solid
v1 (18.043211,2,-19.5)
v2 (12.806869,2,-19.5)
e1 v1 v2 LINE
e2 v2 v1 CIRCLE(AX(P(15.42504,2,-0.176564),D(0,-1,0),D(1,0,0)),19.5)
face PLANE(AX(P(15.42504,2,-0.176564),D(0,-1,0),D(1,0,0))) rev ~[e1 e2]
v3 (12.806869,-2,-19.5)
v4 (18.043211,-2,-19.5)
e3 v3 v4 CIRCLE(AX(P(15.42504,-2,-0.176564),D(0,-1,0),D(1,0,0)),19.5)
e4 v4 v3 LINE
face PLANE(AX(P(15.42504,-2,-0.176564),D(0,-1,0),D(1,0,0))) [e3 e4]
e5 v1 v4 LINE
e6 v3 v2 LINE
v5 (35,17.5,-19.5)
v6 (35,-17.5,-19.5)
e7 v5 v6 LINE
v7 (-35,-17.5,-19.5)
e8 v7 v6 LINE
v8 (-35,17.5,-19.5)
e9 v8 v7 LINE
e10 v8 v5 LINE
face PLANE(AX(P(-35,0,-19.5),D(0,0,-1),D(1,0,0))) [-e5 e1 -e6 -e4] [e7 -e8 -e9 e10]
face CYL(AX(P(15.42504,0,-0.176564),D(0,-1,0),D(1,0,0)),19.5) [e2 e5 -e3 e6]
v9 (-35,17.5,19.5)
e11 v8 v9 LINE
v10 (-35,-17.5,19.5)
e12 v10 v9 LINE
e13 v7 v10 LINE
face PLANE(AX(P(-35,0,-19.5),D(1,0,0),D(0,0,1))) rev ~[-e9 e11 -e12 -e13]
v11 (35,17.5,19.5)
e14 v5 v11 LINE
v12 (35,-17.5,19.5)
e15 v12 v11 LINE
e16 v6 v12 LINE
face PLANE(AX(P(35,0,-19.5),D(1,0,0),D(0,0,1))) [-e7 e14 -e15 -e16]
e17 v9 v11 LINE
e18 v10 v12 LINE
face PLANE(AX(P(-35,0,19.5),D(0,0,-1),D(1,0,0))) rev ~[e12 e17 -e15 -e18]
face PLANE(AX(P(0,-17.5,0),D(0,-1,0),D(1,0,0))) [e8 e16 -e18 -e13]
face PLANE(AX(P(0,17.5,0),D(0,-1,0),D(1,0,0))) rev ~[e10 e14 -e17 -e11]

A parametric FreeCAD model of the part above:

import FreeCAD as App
import Part
import Sketcher

V = App.Vector


def add_polygon(sketch, points):
    """Adds a closed chain of lines whose ends are joined by coincident constraints."""
    first, n = sketch.GeometryCount, len(points)
    for a, b in zip(points, points[1:] + points[:1]):
        sketch.addGeometry(Part.LineSegment(App.Vector(*a, 0), App.Vector(*b, 0)), False)
    for i in range(n):
        sketch.addConstraint(Sketcher.Constraint("Coincident", first + i, 2, first + (i + 1) % n, 1))

doc = App.newDocument("Part")
params = doc.addObject("Spreadsheet::Sheet", "Params")
for row, (alias, value) in enumerate([
    ("sketch1_width", "70 mm"),
    ("sketch1_height", "39 mm"),
    ("pad1_length", "35 mm"),
    ("sketch2_diameter", "39 mm"),
    ("pad2_length", "2 mm"),
    ("pad2_length2", "2 mm"),
], start=1):
    params.set(f"A{row}", alias)
    params.set(f"B{row}", "=" + value)
    params.setAlias(f"B{row}", alias)

body = doc.addObject("PartDesign::Body", "Body")

# Sketch on XZ plane
sketch1 = body.newObject("Sketcher::SketchObject", "Sketch")
sketch1.AttachmentSupport = (doc.getObject("XZ_Plane"), [""])
sketch1.MapMode = "FlatFace"
add_polygon(sketch1, [(-35, 19.5), (-35, -19.5), (35, -19.5), (35, 19.5)])  # lines 0-3
sketch1.addConstraint([
    Sketcher.Constraint("Vertical", 0),
    Sketcher.Constraint("Horizontal", 1),
    Sketcher.Constraint("Vertical", 2),
    Sketcher.Constraint("Horizontal", 3),
    Sketcher.Constraint("Symmetric", 0, 2, 2, 2, -1, 1),
    Sketcher.Constraint("DistanceX", 1, 1, 1, 2, 70.0),
    Sketcher.Constraint("DistanceY", 0, 2, 0, 1, 39.0),
])
sketch1.setExpression("Constraints[9]", "Params.sketch1_width")
sketch1.setExpression("Constraints[10]", "Params.sketch1_height")
pad1 = body.newObject("PartDesign::Pad", "Pad")
pad1.Profile = sketch1
pad1.setExpression("Length", "Params.pad1_length")
pad1.Midplane = True

# Sketch on XZ plane
sketch2 = body.newObject("Sketcher::SketchObject", "Sketch001")
sketch2.AttachmentSupport = (doc.getObject("XZ_Plane"), [""])
sketch2.MapMode = "FlatFace"
sketch2.addGeometry(Part.Circle(V(15.42504, -0.176564, 0), V(0, 0, 1), 19.5), False)
sketch2.addConstraint([
    Sketcher.Constraint("Diameter", 0, 39.0),
    Sketcher.Constraint("DistanceX", -1, 1, 0, 3, 15.42504),
    Sketcher.Constraint("DistanceY", 0, 3, -1, 1, 0.176564),
])
sketch2.setExpression("Constraints[0]", "Params.sketch2_diameter")
pad2 = body.newObject("PartDesign::Pad", "Pad001")
pad2.Profile = sketch2
pad2.Type = "TwoLengths"
pad2.setExpression("Length", "Params.pad2_length")
pad2.setExpression("Length2", "Params.pad2_length2")

doc.recompute()
